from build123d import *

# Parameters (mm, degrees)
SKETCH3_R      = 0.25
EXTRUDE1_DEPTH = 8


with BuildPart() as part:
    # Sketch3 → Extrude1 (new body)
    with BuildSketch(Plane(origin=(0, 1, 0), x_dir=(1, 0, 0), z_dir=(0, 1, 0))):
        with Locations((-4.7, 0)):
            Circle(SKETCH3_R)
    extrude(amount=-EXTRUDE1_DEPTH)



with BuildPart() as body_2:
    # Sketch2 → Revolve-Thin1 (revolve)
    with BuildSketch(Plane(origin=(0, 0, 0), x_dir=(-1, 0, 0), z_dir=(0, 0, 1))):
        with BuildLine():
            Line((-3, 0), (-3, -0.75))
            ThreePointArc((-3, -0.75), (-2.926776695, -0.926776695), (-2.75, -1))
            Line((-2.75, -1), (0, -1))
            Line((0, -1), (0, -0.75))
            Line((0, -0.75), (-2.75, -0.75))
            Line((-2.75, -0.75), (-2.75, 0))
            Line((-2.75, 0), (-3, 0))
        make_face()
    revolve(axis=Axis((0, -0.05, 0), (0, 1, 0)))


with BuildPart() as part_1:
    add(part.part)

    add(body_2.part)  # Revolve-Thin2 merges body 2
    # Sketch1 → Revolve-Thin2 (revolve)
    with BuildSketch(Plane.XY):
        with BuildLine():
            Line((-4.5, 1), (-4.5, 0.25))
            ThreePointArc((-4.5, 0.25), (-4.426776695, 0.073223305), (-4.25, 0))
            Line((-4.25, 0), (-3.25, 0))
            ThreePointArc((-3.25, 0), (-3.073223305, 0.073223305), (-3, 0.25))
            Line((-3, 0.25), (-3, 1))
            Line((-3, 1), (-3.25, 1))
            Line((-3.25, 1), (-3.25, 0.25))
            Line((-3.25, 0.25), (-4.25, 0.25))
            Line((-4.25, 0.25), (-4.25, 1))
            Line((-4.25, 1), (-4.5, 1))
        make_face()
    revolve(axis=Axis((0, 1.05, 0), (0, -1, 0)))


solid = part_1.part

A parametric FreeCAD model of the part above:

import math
import FreeCAD as App
import Part
import Sketcher

V = App.Vector
Q = App.Units.Quantity

doc = App.newDocument("Part")
body = doc.addObject("PartDesign::Body", "Body")

# Sketch on XZ plane
sketch1 = body.newObject("Sketcher::SketchObject", "Sketch")
sketch1.AttachmentSupport = (doc.getObject("XZ_Plane"), [""])
sketch1.MapMode = "FlatFace"
sketch1.AttachmentOffset = App.Placement(V(0, 0, -1), App.Rotation())
sketch1.addGeometry(Part.Circle(V(-4.7, 0, 0), V(0, 0, 1), 0.25), False)
sketch1.addConstraint([
    Sketcher.Constraint("PointOnObject", 0, 3, -1),
    Sketcher.Constraint("Diameter", 0, Q("0.5 mm")),
    Sketcher.Constraint("DistanceX", 0, 3, -1, 1, Q("4.7 mm")),
])
pad1 = body.newObject("PartDesign::Pad", "Pad")
pad1.Profile = sketch1
pad1.Length = 8
body2 = doc.addObject("PartDesign::Body", "Body001")

# Sketch on XY plane
sketch2 = body2.newObject("Sketcher::SketchObject", "Sketch001")
sketch2.AttachmentSupport = (doc.getObject("XY_Plane001"), [""])
sketch2.MapMode = "FlatFace"
sketch2.addGeometry([
    Part.LineSegment(V(3, 0, 0), V(3, 0.75, 0)),  # 0
    Part.ArcOfCircle(Part.Circle(V(2.75, 0.75, 0), V(0, 0, 1), 0.25), math.radians(0), math.radians(90)),  # 1
    Part.LineSegment(V(2.75, 1, 0), V(0, 1, 0)),  # 2
    Part.LineSegment(V(0, 1, 0), V(0, 0.75, 0)),  # 3
    Part.LineSegment(V(0, 0.75, 0), V(2.75, 0.75, 0)),  # 4
    Part.LineSegment(V(2.75, 0.75, 0), V(2.75, 0, 0)),  # 5
    Part.LineSegment(V(2.75, 0, 0), V(3, 0, 0)),  # 6
], False)
sketch2.addConstraint([
    Sketcher.Constraint("Tangent", 0, 2, 1, 1),
    Sketcher.Constraint("Tangent", 1, 2, 2, 1),
    Sketcher.Constraint("Coincident", 2, 2, 3, 1),
    Sketcher.Constraint("Coincident", 3, 2, 4, 1),
    Sketcher.Constraint("Coincident", 4, 2, 5, 1),
    Sketcher.Constraint("Coincident", 5, 2, 6, 1),
    Sketcher.Constraint("Coincident", 6, 2, 0, 1),
    Sketcher.Constraint("Vertical", 0),
    Sketcher.Constraint("Horizontal", 2),
    Sketcher.Constraint("Vertical", 3),
    Sketcher.Constraint("Horizontal", 4),
    Sketcher.Constraint("Vertical", 5),
    Sketcher.Constraint("Horizontal", 6),
    Sketcher.Constraint("Coincident", 4, 2, 1, 3),
    Sketcher.Constraint("PointOnObject", 2, 2, -2),
    Sketcher.Constraint("PointOnObject", 5, 2, -1),
    Sketcher.Constraint("Radius", 1, Q("0.25 mm")),
    Sketcher.Constraint("DistanceX", -1, 1, 0, 2, Q("3 mm")),
    Sketcher.Constraint("DistanceY", -1, 1, 1, 2, Q("1 mm")),
])
revolution = body2.newObject("PartDesign::Revolution", "Revolution")
revolution.Profile = sketch2
revolution.ReferenceAxis = (sketch2, ["V_Axis"])
revolution.Angle = 360
body.AllowCompound = True
doc.recompute()

boolean = body.newObject("PartDesign::Boolean", "Boolean")
boolean.Type = "Fuse"
boolean.addObjects([body2])

# Sketch on XY plane
sketch3 = body.newObject("Sketcher::SketchObject", "Sketch002")
sketch3.AttachmentSupport = (doc.getObject("XY_Plane"), [""])
sketch3.MapMode = "FlatFace"
sketch3.addGeometry([
    Part.LineSegment(V(-4.5, 1, 0), V(-4.5, 0.25, 0)),  # 0
    Part.ArcOfCircle(Part.Circle(V(-4.25, 0.25, 0), V(0, 0, 1), 0.25), math.radians(-180), math.radians(-90)),  # 1
    Part.LineSegment(V(-4.25, 0, 0), V(-3.25, 0, 0)),  # 2
    Part.ArcOfCircle(Part.Circle(V(-3.25, 0.25, 0), V(0, 0, 1), 0.25), math.radians(-90), math.radians(0)),  # 3
    Part.LineSegment(V(-3, 0.25, 0), V(-3, 1, 0)),  # 4
    Part.LineSegment(V(-3, 1, 0), V(-3.25, 1, 0)),  # 5
    Part.LineSegment(V(-3.25, 1, 0), V(-3.25, 0.25, 0)),  # 6
    Part.LineSegment(V(-3.25, 0.25, 0), V(-4.25, 0.25, 0)),  # 7
    Part.LineSegment(V(-4.25, 0.25, 0), V(-4.25, 1, 0)),  # 8
    Part.LineSegment(V(-4.25, 1, 0), V(-4.5, 1, 0)),  # 9
], False)
sketch3.addConstraint([
    Sketcher.Constraint("Tangent", 0, 2, 1, 1),
    Sketcher.Constraint("Tangent", 1, 2, 2, 1),
    Sketcher.Constraint("Tangent", 2, 2, 3, 1),
    Sketcher.Constraint("Tangent", 3, 2, 4, 1),
    Sketcher.Constraint("Coincident", 4, 2, 5, 1),
    Sketcher.Constraint("Coincident", 5, 2, 6, 1),
    Sketcher.Constraint("Coincident", 6, 2, 7, 1),
    Sketcher.Constraint("Coincident", 7, 2, 8, 1),
    Sketcher.Constraint("Coincident", 8, 2, 9, 1),
    Sketcher.Constraint("Coincident", 9, 2, 0, 1),
    Sketcher.Constraint("Vertical", 0),
    Sketcher.Constraint("Horizontal", 2),
    Sketcher.Constraint("Vertical", 4),
    Sketcher.Constraint("Horizontal", 5),
    Sketcher.Constraint("Vertical", 6),
    Sketcher.Constraint("Horizontal", 7),
    Sketcher.Constraint("Vertical", 8),
    Sketcher.Constraint("Horizontal", 9),
    Sketcher.Constraint("Coincident", 6, 2, 3, 3),
    Sketcher.Constraint("Coincident", 7, 2, 1, 3),
    Sketcher.Constraint("PointOnObject", 1, 2, -1),
    Sketcher.Constraint("Horizontal", 5, 2, 8, 2),
    Sketcher.Constraint("DistanceX", 2, 1, 2, 2, Q("1 mm")),
    Sketcher.Constraint("Radius", 1, Q("0.25 mm")),
    Sketcher.Constraint("DistanceX", 3, 2, -1, 1, Q("3 mm")),
    Sketcher.Constraint("DistanceY", -1, 1, 4, 2, Q("1 mm")),
])
revolution2 = body.newObject("PartDesign::Revolution", "Revolution001")
revolution2.Profile = sketch3
revolution2.ReferenceAxis = (sketch3, ["V_Axis"])
revolution2.Angle = 360

doc.recompute()
